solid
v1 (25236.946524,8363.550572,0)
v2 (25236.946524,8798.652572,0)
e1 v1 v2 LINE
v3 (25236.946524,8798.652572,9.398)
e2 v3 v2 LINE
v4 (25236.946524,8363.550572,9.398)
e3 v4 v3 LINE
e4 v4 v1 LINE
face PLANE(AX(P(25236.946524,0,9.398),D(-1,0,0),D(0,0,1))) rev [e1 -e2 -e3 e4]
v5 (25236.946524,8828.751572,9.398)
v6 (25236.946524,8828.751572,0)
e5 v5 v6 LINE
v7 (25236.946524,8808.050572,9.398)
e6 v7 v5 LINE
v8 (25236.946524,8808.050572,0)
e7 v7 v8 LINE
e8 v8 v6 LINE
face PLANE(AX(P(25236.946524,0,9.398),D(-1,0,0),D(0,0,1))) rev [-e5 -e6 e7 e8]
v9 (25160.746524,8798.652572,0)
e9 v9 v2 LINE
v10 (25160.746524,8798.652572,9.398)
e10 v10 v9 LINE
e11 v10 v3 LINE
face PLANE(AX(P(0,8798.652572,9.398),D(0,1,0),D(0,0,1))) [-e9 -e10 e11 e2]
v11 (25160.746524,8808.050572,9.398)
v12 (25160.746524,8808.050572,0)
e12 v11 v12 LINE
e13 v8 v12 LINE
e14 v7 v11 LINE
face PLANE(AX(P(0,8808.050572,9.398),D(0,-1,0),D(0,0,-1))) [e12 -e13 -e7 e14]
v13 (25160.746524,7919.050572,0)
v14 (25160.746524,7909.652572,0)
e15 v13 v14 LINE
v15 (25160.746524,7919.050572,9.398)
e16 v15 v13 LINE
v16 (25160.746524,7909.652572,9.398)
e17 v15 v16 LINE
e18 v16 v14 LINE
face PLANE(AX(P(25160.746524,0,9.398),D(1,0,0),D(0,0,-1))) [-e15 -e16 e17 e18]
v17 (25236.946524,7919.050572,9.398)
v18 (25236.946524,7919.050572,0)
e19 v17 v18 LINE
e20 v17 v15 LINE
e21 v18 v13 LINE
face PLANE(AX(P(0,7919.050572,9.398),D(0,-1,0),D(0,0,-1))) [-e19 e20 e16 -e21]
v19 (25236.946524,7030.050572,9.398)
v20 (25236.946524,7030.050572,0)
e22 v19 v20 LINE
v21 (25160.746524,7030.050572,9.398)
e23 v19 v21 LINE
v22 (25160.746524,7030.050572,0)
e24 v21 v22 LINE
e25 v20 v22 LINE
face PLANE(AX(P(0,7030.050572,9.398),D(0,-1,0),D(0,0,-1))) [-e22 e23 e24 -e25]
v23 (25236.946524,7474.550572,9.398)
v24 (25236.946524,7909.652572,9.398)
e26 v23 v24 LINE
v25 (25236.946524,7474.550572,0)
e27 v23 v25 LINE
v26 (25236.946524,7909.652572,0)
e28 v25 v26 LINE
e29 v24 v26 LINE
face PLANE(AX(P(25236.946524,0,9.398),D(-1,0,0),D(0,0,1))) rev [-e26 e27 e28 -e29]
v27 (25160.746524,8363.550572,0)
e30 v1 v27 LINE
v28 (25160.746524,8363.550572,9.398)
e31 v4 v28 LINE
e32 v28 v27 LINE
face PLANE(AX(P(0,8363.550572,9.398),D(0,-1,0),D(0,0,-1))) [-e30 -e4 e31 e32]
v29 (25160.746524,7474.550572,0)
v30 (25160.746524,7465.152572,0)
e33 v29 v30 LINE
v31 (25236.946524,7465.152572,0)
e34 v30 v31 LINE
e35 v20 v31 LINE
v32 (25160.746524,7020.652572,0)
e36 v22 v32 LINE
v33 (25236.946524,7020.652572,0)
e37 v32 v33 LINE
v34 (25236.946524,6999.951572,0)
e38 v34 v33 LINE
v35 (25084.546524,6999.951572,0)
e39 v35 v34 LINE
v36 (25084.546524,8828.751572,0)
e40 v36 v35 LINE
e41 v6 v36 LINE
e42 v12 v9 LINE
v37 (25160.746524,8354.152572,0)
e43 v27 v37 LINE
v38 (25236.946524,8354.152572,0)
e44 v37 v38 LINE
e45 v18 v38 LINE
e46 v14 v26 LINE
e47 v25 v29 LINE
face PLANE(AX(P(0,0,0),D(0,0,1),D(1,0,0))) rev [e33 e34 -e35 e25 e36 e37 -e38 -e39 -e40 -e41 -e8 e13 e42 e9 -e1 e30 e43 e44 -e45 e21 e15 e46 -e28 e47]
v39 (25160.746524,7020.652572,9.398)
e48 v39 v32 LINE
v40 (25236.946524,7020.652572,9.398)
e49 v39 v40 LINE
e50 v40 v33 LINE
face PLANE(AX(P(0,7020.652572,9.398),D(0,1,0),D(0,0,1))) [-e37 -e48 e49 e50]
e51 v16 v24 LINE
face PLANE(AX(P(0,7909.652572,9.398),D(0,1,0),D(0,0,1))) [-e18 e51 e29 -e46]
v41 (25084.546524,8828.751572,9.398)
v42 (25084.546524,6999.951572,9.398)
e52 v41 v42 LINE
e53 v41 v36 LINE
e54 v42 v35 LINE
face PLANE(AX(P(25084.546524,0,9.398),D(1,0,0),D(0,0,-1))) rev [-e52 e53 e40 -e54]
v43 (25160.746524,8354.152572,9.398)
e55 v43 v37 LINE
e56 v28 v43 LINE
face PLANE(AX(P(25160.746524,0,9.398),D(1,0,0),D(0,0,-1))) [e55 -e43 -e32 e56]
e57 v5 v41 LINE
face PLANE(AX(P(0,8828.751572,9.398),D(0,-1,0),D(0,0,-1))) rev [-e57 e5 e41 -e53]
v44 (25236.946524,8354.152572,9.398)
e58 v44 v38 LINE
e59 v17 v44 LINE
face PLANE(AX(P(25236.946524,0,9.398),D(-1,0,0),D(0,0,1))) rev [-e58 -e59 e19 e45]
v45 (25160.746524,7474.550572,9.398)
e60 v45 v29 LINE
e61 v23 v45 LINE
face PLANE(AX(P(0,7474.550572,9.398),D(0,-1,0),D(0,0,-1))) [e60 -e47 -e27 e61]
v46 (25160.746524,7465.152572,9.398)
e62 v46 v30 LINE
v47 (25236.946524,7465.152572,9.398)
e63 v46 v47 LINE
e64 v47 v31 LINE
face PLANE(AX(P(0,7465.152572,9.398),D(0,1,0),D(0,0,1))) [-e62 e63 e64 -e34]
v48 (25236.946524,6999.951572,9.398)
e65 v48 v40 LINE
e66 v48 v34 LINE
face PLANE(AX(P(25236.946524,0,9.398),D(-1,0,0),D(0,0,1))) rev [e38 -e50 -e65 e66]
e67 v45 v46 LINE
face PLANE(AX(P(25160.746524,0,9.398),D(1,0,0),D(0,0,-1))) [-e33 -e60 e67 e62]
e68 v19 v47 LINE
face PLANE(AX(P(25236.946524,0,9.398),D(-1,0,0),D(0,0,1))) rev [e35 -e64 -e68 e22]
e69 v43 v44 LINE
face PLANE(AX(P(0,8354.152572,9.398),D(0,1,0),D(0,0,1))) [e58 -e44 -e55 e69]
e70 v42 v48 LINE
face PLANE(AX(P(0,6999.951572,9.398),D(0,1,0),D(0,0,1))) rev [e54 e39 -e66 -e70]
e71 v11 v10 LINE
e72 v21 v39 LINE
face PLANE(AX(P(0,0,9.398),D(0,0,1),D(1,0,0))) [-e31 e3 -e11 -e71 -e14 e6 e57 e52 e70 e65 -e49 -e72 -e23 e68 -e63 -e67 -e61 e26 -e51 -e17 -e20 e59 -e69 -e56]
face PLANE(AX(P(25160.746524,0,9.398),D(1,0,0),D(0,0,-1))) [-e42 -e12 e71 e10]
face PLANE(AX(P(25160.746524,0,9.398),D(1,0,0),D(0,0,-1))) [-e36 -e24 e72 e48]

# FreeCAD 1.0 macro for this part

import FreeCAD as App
import Part
import Sketcher

V = App.Vector
Q = App.Units.Quantity


def add_polygon(sketch, points):
    """Adds a closed chain of lines whose ends are joined by coincident constraints."""
    first, n = sketch.GeometryCount, len(points)
    for a, b in zip(points, points[1:] + points[:1]):
        sketch.addGeometry(Part.LineSegment(App.Vector(*a, 0), App.Vector(*b, 0)), False)
    for i in range(n):
        sketch.addConstraint(Sketcher.Constraint("Coincident", first + i, 2, first + (i + 1) % n, 1))

doc = App.newDocument("Part")
params = doc.addObject("Spreadsheet::Sheet", "Params")
for row, (alias, value) in enumerate([
    ("sketch1_width", "6 in"),
    ("sketch1_width2", "3 in"),
    ("sketch1_height", "72 in"),
    ("sketch1_height2", "0.37 in"),
    ("sketch1_height3", "17.13 in"),
    ("pad1_length", "0.37 in"),
], start=1):
    params.set(f"A{row}", alias)
    params.set(f"B{row}", "=" + value)
    params.setAlias(f"B{row}", alias)

body = doc.addObject("PartDesign::Body", "Body")

sketch1 = doc.addObject("Sketcher::SketchObject", "Sketch")
body.addObject(sketch1)
sketch1.AttachmentSupport = (doc.XY_Plane, [""])
sketch1.MapMode = "FlatFace"
add_polygon(sketch1, [(25085, 8829), (25085, 7000), (25237, 7000), (25237, 7021), (25161, 7021), (25161, 7030), (25237, 7030), (25237, 7465), (25161, 7465), (25161, 7475), (25237, 7475), (25237, 7910), (25161, 7910), (25161, 7919), (25237, 7919), (25237, 8354), (25161, 8354), (25161, 8364), (25237, 8364), (25237, 8799), (25161, 8799), (25161, 8808), (25237, 8808), (25237, 8829)])
sketch1.addConstraint([
    Sketcher.Constraint("Vertical", 0),
    Sketcher.Constraint("Horizontal", 1),
    Sketcher.Constraint("Vertical", 2),
    Sketcher.Constraint("Horizontal", 3),
    Sketcher.Constraint("Vertical", 4),
    Sketcher.Constraint("Horizontal", 5),
    Sketcher.Constraint("Vertical", 6),
    Sketcher.Constraint("Horizontal", 7),
    Sketcher.Constraint("Vertical", 8),
    Sketcher.Constraint("Horizontal", 9),
    Sketcher.Constraint("Vertical", 10),
    Sketcher.Constraint("Horizontal", 11),
    Sketcher.Constraint("Vertical", 12),
    Sketcher.Constraint("Horizontal", 13),
    Sketcher.Constraint("Vertical", 14),
    Sketcher.Constraint("Horizontal", 15),
    Sketcher.Constraint("Vertical", 16),
    Sketcher.Constraint("Horizontal", 17),
    Sketcher.Constraint("Vertical", 18),
    Sketcher.Constraint("Horizontal", 19),
    Sketcher.Constraint("Vertical", 20),
    Sketcher.Constraint("Horizontal", 21),
    Sketcher.Constraint("Vertical", 22),
    Sketcher.Constraint("Horizontal", 23),
    Sketcher.Constraint("Vertical", 2, 2, 5, 2),
    Sketcher.Constraint("Vertical", 4, 2, 7, 2),
    Sketcher.Constraint("Vertical", 6, 2, 9, 2),
    Sketcher.Constraint("Vertical", 8, 2, 11, 2),
    Sketcher.Constraint("Vertical", 10, 2, 13, 2),
    Sketcher.Constraint("Vertical", 12, 2, 15, 2),
    Sketcher.Constraint("Vertical", 14, 2, 17, 2),
    Sketcher.Constraint("Vertical", 16, 2, 19, 2),
    Sketcher.Constraint("Vertical", 18, 2, 21, 2),
    Sketcher.Constraint("Equal", 4, 8),
    Sketcher.Constraint("Equal", 6, 10),
    Sketcher.Constraint("Equal", 8, 12),
    Sketcher.Constraint("Equal", 10, 14),
    Sketcher.Constraint("Equal", 12, 16),
    Sketcher.Constraint("Equal", 14, 18),
    Sketcher.Constraint("Equal", 16, 20),
    Sketcher.Constraint("Equal", 2, 22),
    Sketcher.Constraint("DistanceX", 1, 1, 1, 2, Q("6 in")),
    Sketcher.Constraint("DistanceX", 3, 2, 3, 1, Q("3 in")),
    Sketcher.Constraint("DistanceY", 0, 2, 0, 1, Q("72 in")),
    Sketcher.Constraint("DistanceY", 4, 1, 4, 2, Q("0.37 in")),
    Sketcher.Constraint("DistanceY", 6, 1, 6, 2, Q("17.13 in")),
    Sketcher.Constraint("DistanceY", -1, 1, 0, 2, 6999.951572),
    Sketcher.Constraint("DistanceX", -1, 1, 0, 2, 25084.546524),
])
sketch1.setExpression("Constraints[65]", "Params.sketch1_width")
sketch1.setExpression("Constraints[66]", "Params.sketch1_width2")
sketch1.setExpression("Constraints[67]", "Params.sketch1_height")
sketch1.setExpression("Constraints[68]", "Params.sketch1_height2")
sketch1.setExpression("Constraints[69]", "Params.sketch1_height3")
pad1 = doc.addObject("PartDesign::Pad", "Pad")
body.addObject(pad1)
pad1.Profile = sketch1
pad1.setExpression("Length", "Params.pad1_length")

doc.recompute()
